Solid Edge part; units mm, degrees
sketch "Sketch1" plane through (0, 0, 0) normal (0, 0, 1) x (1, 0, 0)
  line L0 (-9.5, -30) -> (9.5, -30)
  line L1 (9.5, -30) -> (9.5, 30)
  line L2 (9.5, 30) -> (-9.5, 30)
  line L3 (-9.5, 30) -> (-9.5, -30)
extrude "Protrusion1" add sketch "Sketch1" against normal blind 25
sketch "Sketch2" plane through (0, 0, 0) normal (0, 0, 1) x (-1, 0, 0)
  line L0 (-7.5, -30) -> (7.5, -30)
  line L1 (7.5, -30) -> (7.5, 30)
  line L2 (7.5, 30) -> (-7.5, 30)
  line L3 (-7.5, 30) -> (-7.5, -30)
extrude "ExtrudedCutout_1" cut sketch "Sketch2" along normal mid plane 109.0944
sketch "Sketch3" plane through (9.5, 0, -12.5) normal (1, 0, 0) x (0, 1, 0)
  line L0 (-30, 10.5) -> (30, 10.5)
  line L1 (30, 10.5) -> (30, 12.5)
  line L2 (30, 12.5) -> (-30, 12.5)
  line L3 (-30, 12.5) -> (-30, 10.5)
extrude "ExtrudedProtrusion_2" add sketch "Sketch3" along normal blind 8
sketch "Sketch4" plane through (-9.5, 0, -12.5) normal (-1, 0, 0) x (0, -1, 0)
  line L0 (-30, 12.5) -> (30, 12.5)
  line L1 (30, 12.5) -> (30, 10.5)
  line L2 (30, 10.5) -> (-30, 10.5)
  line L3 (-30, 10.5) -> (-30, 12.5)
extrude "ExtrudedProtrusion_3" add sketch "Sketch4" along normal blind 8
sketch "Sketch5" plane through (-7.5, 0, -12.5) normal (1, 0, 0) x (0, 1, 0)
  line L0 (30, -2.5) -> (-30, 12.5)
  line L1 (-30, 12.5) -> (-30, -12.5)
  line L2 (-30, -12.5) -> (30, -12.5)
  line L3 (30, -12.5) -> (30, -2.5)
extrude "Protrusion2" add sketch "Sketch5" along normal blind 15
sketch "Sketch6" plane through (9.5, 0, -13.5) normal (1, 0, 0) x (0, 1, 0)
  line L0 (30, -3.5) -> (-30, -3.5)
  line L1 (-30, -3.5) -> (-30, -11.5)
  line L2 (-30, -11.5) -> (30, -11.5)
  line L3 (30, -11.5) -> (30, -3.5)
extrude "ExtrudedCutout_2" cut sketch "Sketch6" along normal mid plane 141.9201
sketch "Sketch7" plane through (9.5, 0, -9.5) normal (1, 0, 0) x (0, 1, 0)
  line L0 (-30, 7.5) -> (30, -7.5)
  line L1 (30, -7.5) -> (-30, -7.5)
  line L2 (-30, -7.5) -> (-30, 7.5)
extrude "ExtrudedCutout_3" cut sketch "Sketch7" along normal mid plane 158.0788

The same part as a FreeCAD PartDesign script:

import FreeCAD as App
import Part
import Sketcher
from FreeCAD import Vector

doc = App.newDocument("Part")
body = doc.addObject("PartDesign::Body", "Body")
body.AllowCompound = True

# Sketch on XY plane
sketch1 = doc.addObject("Sketcher::SketchObject", "Sketch")
body.addObject(sketch1)
sketch1.AttachmentSupport = (doc.XY_Plane, [""])
sketch1.MapMode = "FlatFace"
sketch1.addGeometry([
    Part.LineSegment(Vector(-10, 30, 0), Vector(-10, -30, 0)),
    Part.LineSegment(Vector(-10, -30, 0), Vector(10, -30, 0)),
    Part.LineSegment(Vector(10, -30, 0), Vector(10, 30, 0)),
    Part.LineSegment(Vector(10, 30, 0), Vector(-10, 30, 0)),
], False)
sketch1.addConstraint([
    Sketcher.Constraint("Coincident", 0, 2, 1, 1),
    Sketcher.Constraint("Coincident", 1, 2, 2, 1),
    Sketcher.Constraint("Coincident", 2, 2, 3, 1),
    Sketcher.Constraint("Coincident", 3, 2, 0, 1),
    Sketcher.Constraint("Vertical", 0),
    Sketcher.Constraint("Horizontal", 1),
    Sketcher.Constraint("Vertical", 2),
    Sketcher.Constraint("Horizontal", 3),
    Sketcher.Constraint("Symmetric", 0, 2, 2, 2, -1, 1),
    Sketcher.Constraint("DistanceX", 1, 1, 1, 2, 19.0),
    Sketcher.Constraint("DistanceY", 0, 2, 0, 1, 60.0),
])
pad1 = doc.addObject("PartDesign::Pad", "Pad")
body.addObject(pad1)
pad1.Profile = sketch1
pad1.Length = 25
pad1.Reversed = True

# Sketch on XY plane
sketch2 = doc.addObject("Sketcher::SketchObject", "Sketch001")
body.addObject(sketch2)
sketch2.AttachmentSupport = (doc.XY_Plane, [""])
sketch2.MapMode = "FlatFace"
sketch2.addGeometry([
    Part.LineSegment(Vector(8, -30, 0), Vector(8, 30, 0)),
    Part.LineSegment(Vector(8, 30, 0), Vector(-8, 30, 0)),
    Part.LineSegment(Vector(-8, 30, 0), Vector(-8, -30, 0)),
    Part.LineSegment(Vector(-8, -30, 0), Vector(8, -30, 0)),
], False)
sketch2.addConstraint([
    Sketcher.Constraint("Coincident", 0, 2, 1, 1),
    Sketcher.Constraint("Coincident", 1, 2, 2, 1),
    Sketcher.Constraint("Coincident", 2, 2, 3, 1),
    Sketcher.Constraint("Coincident", 3, 2, 0, 1),
    Sketcher.Constraint("Vertical", 0),
    Sketcher.Constraint("Horizontal", 1),
    Sketcher.Constraint("Vertical", 2),
    Sketcher.Constraint("Horizontal", 3),
    Sketcher.Constraint("Symmetric", 0, 2, 2, 2, -1, 1),
    Sketcher.Constraint("DistanceX", 1, 2, 1, 1, 15.0),
    Sketcher.Constraint("DistanceY", 0, 1, 0, 2, 60.0),
])
pocket1 = doc.addObject("PartDesign::Pocket", "Pocket")
body.addObject(pocket1)
pocket1.Profile = sketch2
pocket1.Length = 109.0944
pocket1.Midplane = True

# Sketch on YZ plane
sketch3 = doc.addObject("Sketcher::SketchObject", "Sketch002")
body.addObject(sketch3)
sketch3.AttachmentSupport = (doc.YZ_Plane, [""])
sketch3.MapMode = "FlatFace"
sketch3.AttachmentOffset = App.Placement(Vector(0, 0, 9.5), App.Rotation())
sketch3.addGeometry([
    Part.LineSegment(Vector(-30, 0, 0), Vector(-30, -2, 0)),
    Part.LineSegment(Vector(-30, -2, 0), Vector(30, -2, 0)),
    Part.LineSegment(Vector(30, -2, 0), Vector(30, 0, 0)),
    Part.LineSegment(Vector(30, 0, 0), Vector(-30, 0, 0)),
], False)
sketch3.addConstraint([
    Sketcher.Constraint("Coincident", 0, 2, 1, 1),
    Sketcher.Constraint("Coincident", 1, 2, 2, 1),
    Sketcher.Constraint("Coincident", 2, 2, 3, 1),
    Sketcher.Constraint("Coincident", 3, 2, 0, 1),
    Sketcher.Constraint("Vertical", 0),
    Sketcher.Constraint("Horizontal", 1),
    Sketcher.Constraint("Vertical", 2),
    Sketcher.Constraint("Horizontal", 3),
    Sketcher.Constraint("Symmetric", 2, 2, 3, 2, -1, 1),
    Sketcher.Constraint("DistanceX", 1, 1, 1, 2, 60.0),
    Sketcher.Constraint("DistanceY", 0, 2, 0, 1, 2.0),
])
pad2 = doc.addObject("PartDesign::Pad", "Pad001")
body.addObject(pad2)
pad2.Profile = sketch3
pad2.Length = 8

# Sketch on YZ plane
sketch4 = doc.addObject("Sketcher::SketchObject", "Sketch003")
body.addObject(sketch4)
sketch4.AttachmentSupport = (doc.YZ_Plane, [""])
sketch4.MapMode = "FlatFace"
sketch4.AttachmentOffset = App.Placement(Vector(0, 0, -9.5), App.Rotation())
sketch4.addGeometry([
    Part.LineSegment(Vector(-30, 0, 0), Vector(30, 0, 0)),
    Part.LineSegment(Vector(30, 0, 0), Vector(30, -2, 0)),
    Part.LineSegment(Vector(30, -2, 0), Vector(-30, -2, 0)),
    Part.LineSegment(Vector(-30, -2, 0), Vector(-30, 0, 0)),
], False)
sketch4.addConstraint([
    Sketcher.Constraint("Coincident", 0, 2, 1, 1),
    Sketcher.Constraint("Coincident", 1, 2, 2, 1),
    Sketcher.Constraint("Coincident", 2, 2, 3, 1),
    Sketcher.Constraint("Coincident", 3, 2, 0, 1),
    Sketcher.Constraint("Horizontal", 0),
    Sketcher.Constraint("Vertical", 1),
    Sketcher.Constraint("Horizontal", 2),
    Sketcher.Constraint("Vertical", 3),
    Sketcher.Constraint("Symmetric", 0, 2, 3, 2, -1, 1),
    Sketcher.Constraint("DistanceX", 0, 1, 0, 2, 60.0),
    Sketcher.Constraint("DistanceY", 1, 2, 1, 1, 2.0),
])
pad3 = doc.addObject("PartDesign::Pad", "Pad002")
body.addObject(pad3)
pad3.Profile = sketch4
pad3.Length = 8
pad3.Reversed = True

# Sketch on YZ plane
sketch5 = doc.addObject("Sketcher::SketchObject", "Sketch004")
body.addObject(sketch5)
sketch5.AttachmentSupport = (doc.YZ_Plane, [""])
sketch5.MapMode = "FlatFace"
sketch5.AttachmentOffset = App.Placement(Vector(0, 0, -7.5), App.Rotation())
sketch5.addGeometry([
    Part.LineSegment(Vector(30, -25, 0), Vector(30, -15, 0)),
    Part.LineSegment(Vector(30, -15, 0), Vector(-30, 0, 0)),
    Part.LineSegment(Vector(-30, 0, 0), Vector(-30, -25, 0)),
    Part.LineSegment(Vector(-30, -25, 0), Vector(30, -25, 0)),
], False)
sketch5.addConstraint([
    Sketcher.Constraint("Coincident", 0, 2, 1, 1),
    Sketcher.Constraint("Coincident", 1, 2, 2, 1),
    Sketcher.Constraint("Coincident", 2, 2, 3, 1),
    Sketcher.Constraint("Coincident", 3, 2, 0, 1),
    Sketcher.Constraint("Vertical", 0),
    Sketcher.Constraint("Vertical", 2),
    Sketcher.Constraint("Horizontal", 3),
    Sketcher.Constraint("PointOnObject", 1, 2, -1),
    Sketcher.Constraint("DistanceX", 3, 1, 3, 2, 60.0),
    Sketcher.Constraint("DistanceY", 0, 1, 0, 2, 10.0),
    Sketcher.Constraint("DistanceY", 2, 2, 2, 1, 25.0),
    Sketcher.Constraint("DistanceX", -1, 1, 0, 2, 30.0),
])
pad4 = doc.addObject("PartDesign::Pad", "Pad003")
body.addObject(pad4)
pad4.Profile = sketch5
pad4.Length = 15

# Sketch on YZ plane
sketch6 = doc.addObject("Sketcher::SketchObject", "Sketch005")
body.addObject(sketch6)
sketch6.AttachmentSupport = (doc.YZ_Plane, [""])
sketch6.MapMode = "FlatFace"
sketch6.AttachmentOffset = App.Placement(Vector(0, 0, 9.5), App.Rotation())
sketch6.addGeometry([
    Part.LineSegment(Vector(30, -25, 0), Vector(30, -17, 0)),
    Part.LineSegment(Vector(30, -17, 0), Vector(-30, -17, 0)),
    Part.LineSegment(Vector(-30, -17, 0), Vector(-30, -25, 0)),
    Part.LineSegment(Vector(-30, -25, 0), Vector(30, -25, 0)),
], False)
sketch6.addConstraint([
    Sketcher.Constraint("Coincident", 0, 2, 1, 1),
    Sketcher.Constraint("Coincident", 1, 2, 2, 1),
    Sketcher.Constraint("Coincident", 2, 2, 3, 1),
    Sketcher.Constraint("Coincident", 3, 2, 0, 1),
    Sketcher.Constraint("Vertical", 0),
    Sketcher.Constraint("Horizontal", 1),
    Sketcher.Constraint("Vertical", 2),
    Sketcher.Constraint("Horizontal", 3),
    Sketcher.Constraint("DistanceX", 1, 2, 1, 1, 60.0),
    Sketcher.Constraint("DistanceY", 0, 1, 0, 2, 8.0),
    Sketcher.Constraint("DistanceX", -1, 1, 0, 2, 30.0),
    Sketcher.Constraint("DistanceY", 0, 2, -1, 1, 17.0),
])
pocket2 = doc.addObject("PartDesign::Pocket", "Pocket001")
body.addObject(pocket2)
pocket2.Profile = sketch6
pocket2.Length = 141.9201
pocket2.Midplane = True

# Sketch on YZ plane
sketch7 = doc.addObject("Sketcher::SketchObject", "Sketch006")
body.addObject(sketch7)
sketch7.AttachmentSupport = (doc.YZ_Plane, [""])
sketch7.MapMode = "FlatFace"
sketch7.AttachmentOffset = App.Placement(Vector(0, 0, 9.5), App.Rotation())
sketch7.addGeometry([
    Part.LineSegment(Vector(30, -17, 0), Vector(-30, -2, 0)),
    Part.LineSegment(Vector(-30, -2, 0), Vector(-30, -17, 0)),
    Part.LineSegment(Vector(-30, -17, 0), Vector(30, -17, 0)),
], False)
sketch7.addConstraint([
    Sketcher.Constraint("Coincident", 0, 2, 1, 1),
    Sketcher.Constraint("Coincident", 1, 2, 2, 1),
    Sketcher.Constraint("Coincident", 2, 2, 0, 1),
    Sketcher.Constraint("Vertical", 1),
    Sketcher.Constraint("Horizontal", 2),
    Sketcher.Constraint("DistanceX", 2, 1, 2, 2, 60.0),
    Sketcher.Constraint("DistanceY", 1, 2, 1, 1, 15.0),
    Sketcher.Constraint("DistanceX", 0, 2, -1, 1, 30.0),
    Sketcher.Constraint("DistanceY", 0, 2, -1, 1, 2.0),
])
pocket3 = doc.addObject("PartDesign::Pocket", "Pocket002")
body.addObject(pocket3)
pocket3.Profile = sketch7
pocket3.Length = 158.0788
pocket3.Midplane = True

doc.recompute()
